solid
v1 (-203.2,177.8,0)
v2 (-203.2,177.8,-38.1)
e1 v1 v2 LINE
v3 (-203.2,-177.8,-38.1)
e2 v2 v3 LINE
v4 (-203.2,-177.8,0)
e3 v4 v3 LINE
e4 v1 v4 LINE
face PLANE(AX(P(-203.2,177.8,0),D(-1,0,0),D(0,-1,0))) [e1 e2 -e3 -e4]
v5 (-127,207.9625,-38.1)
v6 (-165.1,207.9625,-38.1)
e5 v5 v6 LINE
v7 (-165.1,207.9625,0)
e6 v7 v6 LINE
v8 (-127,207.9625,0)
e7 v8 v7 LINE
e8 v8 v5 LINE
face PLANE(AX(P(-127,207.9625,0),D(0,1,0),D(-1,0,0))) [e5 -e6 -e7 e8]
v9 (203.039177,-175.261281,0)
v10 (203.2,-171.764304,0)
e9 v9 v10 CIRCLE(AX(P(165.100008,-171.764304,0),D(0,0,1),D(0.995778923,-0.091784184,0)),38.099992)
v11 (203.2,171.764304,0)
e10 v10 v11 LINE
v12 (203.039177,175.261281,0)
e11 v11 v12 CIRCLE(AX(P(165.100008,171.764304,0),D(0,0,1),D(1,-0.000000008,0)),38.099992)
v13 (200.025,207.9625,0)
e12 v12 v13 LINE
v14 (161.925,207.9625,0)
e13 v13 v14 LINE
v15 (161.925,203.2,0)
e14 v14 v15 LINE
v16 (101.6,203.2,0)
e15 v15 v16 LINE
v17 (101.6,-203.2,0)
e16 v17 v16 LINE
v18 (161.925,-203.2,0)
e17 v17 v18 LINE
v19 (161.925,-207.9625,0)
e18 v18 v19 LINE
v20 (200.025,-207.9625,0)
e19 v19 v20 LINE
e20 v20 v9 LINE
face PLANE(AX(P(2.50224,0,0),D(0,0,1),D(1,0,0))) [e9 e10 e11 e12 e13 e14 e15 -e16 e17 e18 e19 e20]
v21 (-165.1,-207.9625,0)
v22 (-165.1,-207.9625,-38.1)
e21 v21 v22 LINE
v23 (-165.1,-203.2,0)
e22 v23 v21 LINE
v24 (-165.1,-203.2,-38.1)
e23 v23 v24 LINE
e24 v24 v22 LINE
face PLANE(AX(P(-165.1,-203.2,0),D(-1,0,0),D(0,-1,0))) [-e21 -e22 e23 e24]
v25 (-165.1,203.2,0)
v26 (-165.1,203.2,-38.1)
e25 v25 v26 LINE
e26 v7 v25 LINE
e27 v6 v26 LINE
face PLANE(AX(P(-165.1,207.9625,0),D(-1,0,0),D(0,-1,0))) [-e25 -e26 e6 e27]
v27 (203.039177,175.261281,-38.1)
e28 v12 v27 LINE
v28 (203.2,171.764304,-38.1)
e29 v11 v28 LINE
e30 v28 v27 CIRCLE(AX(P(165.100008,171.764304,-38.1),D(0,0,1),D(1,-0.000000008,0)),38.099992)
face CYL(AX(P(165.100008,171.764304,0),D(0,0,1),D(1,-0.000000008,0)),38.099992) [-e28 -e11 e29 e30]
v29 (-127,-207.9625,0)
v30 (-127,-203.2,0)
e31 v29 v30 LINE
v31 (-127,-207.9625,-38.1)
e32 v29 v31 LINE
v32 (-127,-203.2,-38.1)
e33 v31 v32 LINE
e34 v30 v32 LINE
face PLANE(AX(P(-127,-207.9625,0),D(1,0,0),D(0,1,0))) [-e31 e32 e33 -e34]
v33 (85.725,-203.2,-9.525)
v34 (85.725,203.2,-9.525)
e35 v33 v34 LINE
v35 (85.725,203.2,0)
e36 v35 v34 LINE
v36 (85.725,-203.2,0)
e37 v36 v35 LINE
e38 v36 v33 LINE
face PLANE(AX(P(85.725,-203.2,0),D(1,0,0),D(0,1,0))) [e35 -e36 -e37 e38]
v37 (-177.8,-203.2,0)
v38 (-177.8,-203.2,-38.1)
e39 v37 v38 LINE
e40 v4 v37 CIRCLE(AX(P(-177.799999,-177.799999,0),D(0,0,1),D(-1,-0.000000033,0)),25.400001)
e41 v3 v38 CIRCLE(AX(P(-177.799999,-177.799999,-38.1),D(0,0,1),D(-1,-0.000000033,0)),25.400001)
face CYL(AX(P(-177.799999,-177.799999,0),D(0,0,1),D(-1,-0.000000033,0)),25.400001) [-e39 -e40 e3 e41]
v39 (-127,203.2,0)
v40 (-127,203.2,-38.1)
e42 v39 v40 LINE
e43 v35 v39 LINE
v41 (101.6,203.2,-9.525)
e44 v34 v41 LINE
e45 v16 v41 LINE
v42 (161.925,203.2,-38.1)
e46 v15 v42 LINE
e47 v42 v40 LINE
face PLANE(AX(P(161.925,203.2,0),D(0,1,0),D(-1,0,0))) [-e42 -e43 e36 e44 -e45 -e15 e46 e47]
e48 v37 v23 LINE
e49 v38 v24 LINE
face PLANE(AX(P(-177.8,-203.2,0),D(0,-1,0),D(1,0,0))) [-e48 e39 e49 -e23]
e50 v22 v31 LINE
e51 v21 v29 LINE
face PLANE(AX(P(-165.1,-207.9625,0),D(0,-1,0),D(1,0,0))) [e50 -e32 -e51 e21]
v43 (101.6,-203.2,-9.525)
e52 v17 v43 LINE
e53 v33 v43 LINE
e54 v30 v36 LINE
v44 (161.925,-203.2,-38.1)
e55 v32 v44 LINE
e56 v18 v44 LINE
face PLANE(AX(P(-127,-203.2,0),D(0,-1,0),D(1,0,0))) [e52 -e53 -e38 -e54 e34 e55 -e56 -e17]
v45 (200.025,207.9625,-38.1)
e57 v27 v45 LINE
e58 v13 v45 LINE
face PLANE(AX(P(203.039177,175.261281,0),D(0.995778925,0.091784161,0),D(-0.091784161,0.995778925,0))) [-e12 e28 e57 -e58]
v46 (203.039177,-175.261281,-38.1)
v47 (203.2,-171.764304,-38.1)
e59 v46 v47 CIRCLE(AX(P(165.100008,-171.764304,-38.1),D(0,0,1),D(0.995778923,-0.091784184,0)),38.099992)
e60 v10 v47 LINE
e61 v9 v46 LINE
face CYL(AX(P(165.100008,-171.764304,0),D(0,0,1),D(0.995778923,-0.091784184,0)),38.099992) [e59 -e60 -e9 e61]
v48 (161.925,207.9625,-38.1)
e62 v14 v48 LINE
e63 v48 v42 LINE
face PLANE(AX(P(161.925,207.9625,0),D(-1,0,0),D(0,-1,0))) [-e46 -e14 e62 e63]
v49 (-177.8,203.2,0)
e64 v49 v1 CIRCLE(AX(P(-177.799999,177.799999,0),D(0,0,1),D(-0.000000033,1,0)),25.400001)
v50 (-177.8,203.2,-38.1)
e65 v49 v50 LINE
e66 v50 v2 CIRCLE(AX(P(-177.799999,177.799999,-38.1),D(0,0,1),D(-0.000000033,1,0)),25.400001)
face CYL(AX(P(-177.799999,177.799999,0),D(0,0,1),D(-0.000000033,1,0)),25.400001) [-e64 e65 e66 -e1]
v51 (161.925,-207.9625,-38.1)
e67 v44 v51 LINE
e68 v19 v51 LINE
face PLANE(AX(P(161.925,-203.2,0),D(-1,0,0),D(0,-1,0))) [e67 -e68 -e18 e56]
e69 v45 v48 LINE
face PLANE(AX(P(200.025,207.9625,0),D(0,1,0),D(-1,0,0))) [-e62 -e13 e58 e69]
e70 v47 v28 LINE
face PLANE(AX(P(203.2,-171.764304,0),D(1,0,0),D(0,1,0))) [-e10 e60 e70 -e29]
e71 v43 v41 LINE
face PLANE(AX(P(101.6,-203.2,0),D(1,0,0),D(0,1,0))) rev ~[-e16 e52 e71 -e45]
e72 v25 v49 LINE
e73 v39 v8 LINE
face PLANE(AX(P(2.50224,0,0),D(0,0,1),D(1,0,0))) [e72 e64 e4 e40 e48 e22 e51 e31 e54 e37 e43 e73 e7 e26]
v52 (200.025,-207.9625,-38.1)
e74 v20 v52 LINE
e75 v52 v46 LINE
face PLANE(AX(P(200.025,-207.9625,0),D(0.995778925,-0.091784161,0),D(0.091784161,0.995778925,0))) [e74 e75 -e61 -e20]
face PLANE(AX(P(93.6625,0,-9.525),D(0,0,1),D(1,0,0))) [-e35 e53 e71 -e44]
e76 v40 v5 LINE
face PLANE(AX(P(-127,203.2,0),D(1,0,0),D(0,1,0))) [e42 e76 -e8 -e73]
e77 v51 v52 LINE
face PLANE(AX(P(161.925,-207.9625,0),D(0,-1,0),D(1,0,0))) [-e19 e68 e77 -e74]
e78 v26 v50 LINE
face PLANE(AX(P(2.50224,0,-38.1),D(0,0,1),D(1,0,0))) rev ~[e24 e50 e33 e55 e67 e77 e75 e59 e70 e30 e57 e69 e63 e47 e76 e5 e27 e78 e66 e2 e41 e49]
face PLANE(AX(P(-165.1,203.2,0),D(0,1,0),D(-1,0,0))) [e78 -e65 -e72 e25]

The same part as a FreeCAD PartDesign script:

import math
import FreeCAD as App
import Part
import Sketcher
from FreeCAD import Vector
Q = App.Units.Quantity


def add_polygon(sketch, points):
    """Adds a closed chain of lines whose ends are joined by coincident constraints."""
    first, n = sketch.GeometryCount, len(points)
    for a, b in zip(points, points[1:] + points[:1]):
        sketch.addGeometry(Part.LineSegment(App.Vector(*a, 0), App.Vector(*b, 0)), False)
    for i in range(n):
        sketch.addConstraint(Sketcher.Constraint("Coincident", first + i, 2, first + (i + 1) % n, 1))

doc = App.newDocument("Part")
params = doc.addObject("Spreadsheet::Sheet", "Params")
for row, (alias, value) in enumerate([
    ("sketch1_radius", "1 in"),
    ("sketch1_height", "14 in"),
    ("sketch1_width", "0.5 in"),
    ("sketch1_width2", "1.5 in"),
    ("sketch1_width3", "11.375 in"),
    ("pad1_length", "1.5 in"),
    ("sketch2_height", "16 in"),
    ("sketch2_width", "0.625 in"),
    ("pocket1_length", "0.375 in"),
], start=1):
    params.set(f"A{row}", alias)
    params.set(f"B{row}", "=" + value)
    params.setAlias(f"B{row}", alias)

body = doc.addObject("PartDesign::Body", "Body")

sketch1 = doc.addObject("Sketcher::SketchObject", "Sketch")
body.addObject(sketch1)
sketch1.AttachmentSupport = (doc.XY_Plane, [""])
sketch1.MapMode = "FlatFace"
sketch1.addGeometry(Part.LineSegment(Vector(-165.1, 203.2, 0), Vector(-177.8, 203.2, 0)), False)
sketch1.addGeometry(Part.ArcOfCircle(Part.Circle(Vector(-177.8, 177.8, 0), Vector(0, 0, 1), 25.4), math.radians(90), math.radians(180)), False)
sketch1.addGeometry(Part.LineSegment(Vector(-203.2, 177.8, 0), Vector(-203.2, -177.8, 0)), False)
sketch1.addGeometry(Part.ArcOfCircle(Part.Circle(Vector(-177.8, -177.8, 0), Vector(0, 0, 1), 25.4), math.radians(-180), math.radians(-90)), False)
sketch1.addGeometry(Part.LineSegment(Vector(-177.8, -203.2, 0), Vector(-165.1, -203.2, 0)), False)
sketch1.addGeometry(Part.LineSegment(Vector(-165.1, -203.2, 0), Vector(-165.1, -208, 0)), False)
sketch1.addGeometry(Part.LineSegment(Vector(-165.1, -208, 0), Vector(-127, -208, 0)), False)
sketch1.addGeometry(Part.LineSegment(Vector(-127, -208, 0), Vector(-127, -203.2, 0)), False)
sketch1.addGeometry(Part.LineSegment(Vector(-127, -203.2, 0), Vector(161.9, -203.2, 0)), False)
sketch1.addGeometry(Part.LineSegment(Vector(161.9, -203.2, 0), Vector(161.9, -208, 0)), False)
sketch1.addGeometry(Part.LineSegment(Vector(161.9, -208, 0), Vector(200, -208, 0)), False)
sketch1.addGeometry(Part.LineSegment(Vector(200, -208, 0), Vector(203, -175.3, 0)), False)
sketch1.addGeometry(Part.ArcOfCircle(Part.Circle(Vector(165.1, -171.8, 0), Vector(0, 0, 1), 38.1), math.radians(-5.27), math.radians(0)), False)
sketch1.addGeometry(Part.LineSegment(Vector(203.2, -171.8, 0), Vector(203.2, 171.8, 0)), False)
sketch1.addGeometry(Part.ArcOfCircle(Part.Circle(Vector(165.1, 171.8, 0), Vector(0, 0, 1), 38.1), math.radians(0), math.radians(5.27)), False)
sketch1.addGeometry(Part.LineSegment(Vector(203, 175.3, 0), Vector(200, 208, 0)), False)
sketch1.addGeometry(Part.LineSegment(Vector(200, 208, 0), Vector(161.9, 208, 0)), False)
sketch1.addGeometry(Part.LineSegment(Vector(161.9, 208, 0), Vector(161.9, 203.2, 0)), False)
sketch1.addGeometry(Part.LineSegment(Vector(161.9, 203.2, 0), Vector(-127, 203.2, 0)), False)
sketch1.addGeometry(Part.LineSegment(Vector(-127, 203.2, 0), Vector(-127, 208, 0)), False)
sketch1.addGeometry(Part.LineSegment(Vector(-127, 208, 0), Vector(-165.1, 208, 0)), False)
sketch1.addGeometry(Part.LineSegment(Vector(-165.1, 208, 0), Vector(-165.1, 203.2, 0)), False)
sketch1.addConstraint(Sketcher.Constraint("Tangent", 0, 2, 1, 1))
sketch1.addConstraint(Sketcher.Constraint("Tangent", 1, 2, 2, 1))
sketch1.addConstraint(Sketcher.Constraint("Tangent", 2, 2, 3, 1))
sketch1.addConstraint(Sketcher.Constraint("Tangent", 3, 2, 4, 1))
sketch1.addConstraint(Sketcher.Constraint("Coincident", 4, 2, 5, 1))
sketch1.addConstraint(Sketcher.Constraint("Coincident", 5, 2, 6, 1))
sketch1.addConstraint(Sketcher.Constraint("Coincident", 6, 2, 7, 1))
sketch1.addConstraint(Sketcher.Constraint("Coincident", 7, 2, 8, 1))
sketch1.addConstraint(Sketcher.Constraint("Coincident", 8, 2, 9, 1))
sketch1.addConstraint(Sketcher.Constraint("Coincident", 9, 2, 10, 1))
sketch1.addConstraint(Sketcher.Constraint("Coincident", 10, 2, 11, 1))
sketch1.addConstraint(Sketcher.Constraint("Tangent", 11, 2, 12, 1))
sketch1.addConstraint(Sketcher.Constraint("Tangent", 12, 2, 13, 1))
sketch1.addConstraint(Sketcher.Constraint("Tangent", 13, 2, 14, 1))
sketch1.addConstraint(Sketcher.Constraint("Tangent", 14, 2, 15, 1))
sketch1.addConstraint(Sketcher.Constraint("Coincident", 15, 2, 16, 1))
sketch1.addConstraint(Sketcher.Constraint("Coincident", 16, 2, 17, 1))
sketch1.addConstraint(Sketcher.Constraint("Coincident", 17, 2, 18, 1))
sketch1.addConstraint(Sketcher.Constraint("Coincident", 18, 2, 19, 1))
sketch1.addConstraint(Sketcher.Constraint("Coincident", 19, 2, 20, 1))
sketch1.addConstraint(Sketcher.Constraint("Coincident", 20, 2, 21, 1))
sketch1.addConstraint(Sketcher.Constraint("Coincident", 21, 2, 0, 1))
sketch1.addConstraint(Sketcher.Constraint("Horizontal", 0))
sketch1.addConstraint(Sketcher.Constraint("Vertical", 2))
sketch1.addConstraint(Sketcher.Constraint("Horizontal", 4))
sketch1.addConstraint(Sketcher.Constraint("Vertical", 5))
sketch1.addConstraint(Sketcher.Constraint("Horizontal", 6))
sketch1.addConstraint(Sketcher.Constraint("Vertical", 7))
sketch1.addConstraint(Sketcher.Constraint("Horizontal", 8))
sketch1.addConstraint(Sketcher.Constraint("Vertical", 9))
sketch1.addConstraint(Sketcher.Constraint("Horizontal", 10))
sketch1.addConstraint(Sketcher.Constraint("Vertical", 13))
sketch1.addConstraint(Sketcher.Constraint("Horizontal", 16))
sketch1.addConstraint(Sketcher.Constraint("Vertical", 17))
sketch1.addConstraint(Sketcher.Constraint("Horizontal", 18))
sketch1.addConstraint(Sketcher.Constraint("Vertical", 19))
sketch1.addConstraint(Sketcher.Constraint("Horizontal", 20))
sketch1.addConstraint(Sketcher.Constraint("Vertical", 21))
sketch1.addConstraint(Sketcher.Constraint("Equal", 1, 3))
sketch1.addConstraint(Sketcher.Constraint("Equal", 12, 14))
sketch1.addConstraint(Sketcher.Constraint("Symmetric", 11, 2, 14, 2, -1))
sketch1.addConstraint(Sketcher.Constraint("Symmetric", 9, 2, 16, 2, -1))
sketch1.addConstraint(Sketcher.Constraint("Symmetric", 7, 2, 18, 2, -1))
sketch1.addConstraint(Sketcher.Constraint("Symmetric", 5, 2, 20, 2, -1))
sketch1.addConstraint(Sketcher.Constraint("Horizontal", 4, 2, 7, 2))
sketch1.addConstraint(Sketcher.Constraint("Horizontal", 6, 2, 9, 2))
sketch1.addConstraint(Sketcher.Constraint("Horizontal", 0, 2, 17, 2))
sketch1.addConstraint(Sketcher.Constraint("Equal", 6, 10))
sketch1.addConstraint(Sketcher.Constraint("Radius", 1, Q("1 in")))
sketch1.addConstraint(Sketcher.Constraint("DistanceY", 2, 2, 2, 1, Q("14 in")))
sketch1.addConstraint(Sketcher.Constraint("DistanceX", 0, 2, 0, 1, Q("0.5 in")))
sketch1.addConstraint(Sketcher.Constraint("DistanceX", 6, 1, 6, 2, Q("1.5 in")))
sketch1.addConstraint(Sketcher.Constraint("DistanceX", 1, 3, -1, 1, Q("7 in")))
sketch1.addConstraint(Sketcher.Constraint("DistanceX", -1, 1, 12, 2, Q("8 in")))
sketch1.addConstraint(Sketcher.Constraint("DistanceX", 8, 1, 8, 2, Q("11.375 in")))
sketch1.addConstraint(Sketcher.Constraint("DistanceY", 5, 2, 5, 1, Q("0.1875 in")))
sketch1.addConstraint(Sketcher.Constraint("Radius", 12, Q("38.099992 mm")))
sketch1.addConstraint(Sketcher.Constraint("DistanceY", 13, 1, 13, 2, Q("343.528608 mm")))
sketch1.setExpression("Constraints[48]", "Params.sketch1_radius")
sketch1.setExpression("Constraints[49]", "Params.sketch1_height")
sketch1.setExpression("Constraints[50]", "Params.sketch1_width")
sketch1.setExpression("Constraints[51]", "Params.sketch1_width2")
sketch1.setExpression("Constraints[54]", "Params.sketch1_width3")
pad1 = doc.addObject("PartDesign::Pad", "Pad")
body.addObject(pad1)
pad1.Profile = sketch1
pad1.setExpression("Length", "Params.pad1_length")
pad1.Reversed = True

sketch2 = doc.addObject("Sketcher::SketchObject", "Sketch001")
body.addObject(sketch2)
sketch2.AttachmentSupport = (doc.XY_Plane, [""])
sketch2.MapMode = "FlatFace"
add_polygon(sketch2, [(86, 203), (86, -203), (102, -203), (102, 203)])
sketch2.addConstraint(Sketcher.Constraint("Vertical", 0))
sketch2.addConstraint(Sketcher.Constraint("Horizontal", 1))
sketch2.addConstraint(Sketcher.Constraint("Vertical", 2))
sketch2.addConstraint(Sketcher.Constraint("Horizontal", 3))
sketch2.addConstraint(Sketcher.Constraint("DistanceY", 0, 2, 0, 1, Q("16 in")))
sketch2.addConstraint(Sketcher.Constraint("DistanceY", 0, 2, -1, 1, Q("8 in")))
sketch2.addConstraint(Sketcher.Constraint("DistanceX", -1, 1, 1, 2, Q("4 in")))
sketch2.addConstraint(Sketcher.Constraint("DistanceX", 1, 1, 1, 2, Q("0.625 in")))
sketch2.setExpression("Constraints[8]", "Params.sketch2_height")
sketch2.setExpression("Constraints[11]", "Params.sketch2_width")
pocket1 = doc.addObject("PartDesign::Pocket", "Pocket")
body.addObject(pocket1)
pocket1.Profile = sketch2
pocket1.setExpression("Length", "Params.pocket1_length")

doc.recompute()
